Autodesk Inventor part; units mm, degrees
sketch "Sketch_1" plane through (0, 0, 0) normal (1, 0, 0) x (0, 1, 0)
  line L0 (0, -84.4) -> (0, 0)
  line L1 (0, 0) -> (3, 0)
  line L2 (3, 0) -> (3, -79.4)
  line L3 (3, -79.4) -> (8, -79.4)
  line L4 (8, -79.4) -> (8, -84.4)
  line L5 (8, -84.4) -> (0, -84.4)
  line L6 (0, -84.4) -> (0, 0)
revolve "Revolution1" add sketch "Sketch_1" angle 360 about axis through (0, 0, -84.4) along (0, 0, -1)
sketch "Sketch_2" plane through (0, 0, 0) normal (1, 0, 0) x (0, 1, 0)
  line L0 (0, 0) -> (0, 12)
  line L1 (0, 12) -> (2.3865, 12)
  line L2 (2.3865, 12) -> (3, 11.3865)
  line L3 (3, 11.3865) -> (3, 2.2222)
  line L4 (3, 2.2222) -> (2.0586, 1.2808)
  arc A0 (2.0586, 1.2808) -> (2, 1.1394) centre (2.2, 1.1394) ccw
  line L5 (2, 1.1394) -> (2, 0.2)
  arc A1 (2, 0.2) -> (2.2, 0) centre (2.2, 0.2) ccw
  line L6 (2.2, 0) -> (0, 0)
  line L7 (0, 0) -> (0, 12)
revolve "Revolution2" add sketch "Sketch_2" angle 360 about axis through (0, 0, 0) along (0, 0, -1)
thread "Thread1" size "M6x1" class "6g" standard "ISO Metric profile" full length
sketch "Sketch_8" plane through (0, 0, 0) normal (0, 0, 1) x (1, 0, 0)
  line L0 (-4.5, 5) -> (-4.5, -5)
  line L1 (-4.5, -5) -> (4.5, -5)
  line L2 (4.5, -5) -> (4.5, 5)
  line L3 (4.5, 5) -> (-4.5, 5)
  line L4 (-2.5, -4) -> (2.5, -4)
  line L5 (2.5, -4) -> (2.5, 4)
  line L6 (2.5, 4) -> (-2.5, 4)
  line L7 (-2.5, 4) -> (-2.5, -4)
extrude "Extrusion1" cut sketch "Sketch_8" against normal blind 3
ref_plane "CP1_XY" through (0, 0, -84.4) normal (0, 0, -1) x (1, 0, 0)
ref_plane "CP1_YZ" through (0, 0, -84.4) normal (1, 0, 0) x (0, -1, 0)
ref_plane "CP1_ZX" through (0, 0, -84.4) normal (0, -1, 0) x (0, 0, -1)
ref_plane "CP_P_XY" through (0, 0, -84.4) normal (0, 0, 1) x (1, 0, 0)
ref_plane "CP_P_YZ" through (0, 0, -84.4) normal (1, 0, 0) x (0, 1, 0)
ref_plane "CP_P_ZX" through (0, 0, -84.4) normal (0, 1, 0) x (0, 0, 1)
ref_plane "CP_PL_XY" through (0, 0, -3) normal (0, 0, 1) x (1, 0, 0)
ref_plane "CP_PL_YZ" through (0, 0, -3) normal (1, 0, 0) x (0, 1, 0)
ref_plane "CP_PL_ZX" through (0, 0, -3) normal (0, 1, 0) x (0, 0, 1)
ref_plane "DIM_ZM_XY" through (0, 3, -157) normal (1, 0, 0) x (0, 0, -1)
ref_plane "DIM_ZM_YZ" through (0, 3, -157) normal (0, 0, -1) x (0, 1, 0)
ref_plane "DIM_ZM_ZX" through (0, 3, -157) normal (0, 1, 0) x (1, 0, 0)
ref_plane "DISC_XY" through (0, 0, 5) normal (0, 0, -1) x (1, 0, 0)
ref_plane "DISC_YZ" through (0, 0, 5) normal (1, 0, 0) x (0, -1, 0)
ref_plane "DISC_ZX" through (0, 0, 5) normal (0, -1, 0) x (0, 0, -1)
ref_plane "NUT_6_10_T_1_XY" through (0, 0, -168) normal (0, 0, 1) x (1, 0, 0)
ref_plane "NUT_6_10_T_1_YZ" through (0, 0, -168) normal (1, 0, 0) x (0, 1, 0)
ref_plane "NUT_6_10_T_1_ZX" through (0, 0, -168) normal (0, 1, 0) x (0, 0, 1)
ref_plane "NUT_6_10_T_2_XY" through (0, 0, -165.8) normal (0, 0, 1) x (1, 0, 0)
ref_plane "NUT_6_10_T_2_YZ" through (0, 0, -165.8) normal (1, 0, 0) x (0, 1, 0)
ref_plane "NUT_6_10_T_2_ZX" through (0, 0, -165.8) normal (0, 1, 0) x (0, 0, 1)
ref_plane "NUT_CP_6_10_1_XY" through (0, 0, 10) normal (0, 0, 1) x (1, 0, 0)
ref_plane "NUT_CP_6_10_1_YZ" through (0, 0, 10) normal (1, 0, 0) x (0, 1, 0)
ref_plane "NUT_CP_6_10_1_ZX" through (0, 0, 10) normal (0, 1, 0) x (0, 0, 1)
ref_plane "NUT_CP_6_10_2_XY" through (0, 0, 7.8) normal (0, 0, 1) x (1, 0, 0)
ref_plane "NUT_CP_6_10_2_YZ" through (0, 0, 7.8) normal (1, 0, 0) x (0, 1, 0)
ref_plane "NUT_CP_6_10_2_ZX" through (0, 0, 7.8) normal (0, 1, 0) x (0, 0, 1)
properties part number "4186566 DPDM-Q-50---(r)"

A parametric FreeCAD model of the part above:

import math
import FreeCAD as App
import Part
import Sketcher
Q = App.Units.Quantity

doc = App.newDocument("Part")
body = doc.addObject("PartDesign::Body", "Body")

# Sketch on YZ plane
sketch1 = body.newObject("Sketcher::SketchObject", "Sketch")
sketch1.AttachmentSupport = (doc.getObject("YZ_Plane"), [""])
sketch1.MapMode = "FlatFace"
sketch1.addGeometry(Part.LineSegment(App.Vector(0, 0, 0), App.Vector(0, -84.4, 0)), False)
sketch1.addGeometry(Part.LineSegment(App.Vector(0, -84.4, 0), App.Vector(8, -84.4, 0)), False)
sketch1.addGeometry(Part.LineSegment(App.Vector(8, -84.4, 0), App.Vector(8, -79.4, 0)), False)
sketch1.addGeometry(Part.LineSegment(App.Vector(8, -79.4, 0), App.Vector(3, -79.4, 0)), False)
sketch1.addGeometry(Part.LineSegment(App.Vector(3, -79.4, 0), App.Vector(3, 0, 0)), False)
sketch1.addGeometry(Part.LineSegment(App.Vector(3, 0, 0), App.Vector(0, 0, 0)), False)
sketch1.addConstraint(Sketcher.Constraint("Coincident", 0, 2, 1, 1))
sketch1.addConstraint(Sketcher.Constraint("Coincident", 1, 2, 2, 1))
sketch1.addConstraint(Sketcher.Constraint("Coincident", 2, 2, 3, 1))
sketch1.addConstraint(Sketcher.Constraint("Coincident", 3, 2, 4, 1))
sketch1.addConstraint(Sketcher.Constraint("Coincident", 4, 2, 5, 1))
sketch1.addConstraint(Sketcher.Constraint("Coincident", 5, 2, 0, 1))
sketch1.addConstraint(Sketcher.Constraint("Vertical", 0))
sketch1.addConstraint(Sketcher.Constraint("Horizontal", 1))
sketch1.addConstraint(Sketcher.Constraint("Vertical", 2))
sketch1.addConstraint(Sketcher.Constraint("Horizontal", 3))
sketch1.addConstraint(Sketcher.Constraint("Vertical", 4))
sketch1.addConstraint(Sketcher.Constraint("Horizontal", 5))
sketch1.addConstraint(Sketcher.Constraint("Coincident", 5, 2, -1, 1))
sketch1.addConstraint(Sketcher.Constraint("Equal", 3, 2))
sketch1.addConstraint(Sketcher.Constraint("DistanceX", 1, 1, 1, 2, Q("8 mm")))
sketch1.addConstraint(Sketcher.Constraint("DistanceX", 3, 2, 3, 1, Q("5 mm")))
sketch1.addConstraint(Sketcher.Constraint("DistanceY", 0, 2, 0, 1, Q("84.4 mm")))
revolution = body.newObject("PartDesign::Revolution", "Revolution")
revolution.Profile = sketch1
revolution.ReferenceAxis = (sketch1, ["V_Axis"])
revolution.Angle = 360

# Sketch on YZ plane
sketch2 = body.newObject("Sketcher::SketchObject", "Sketch001")
sketch2.AttachmentSupport = (doc.getObject("YZ_Plane"), [""])
sketch2.MapMode = "FlatFace"
sketch2.addGeometry(Part.LineSegment(App.Vector(0, 12, 0), App.Vector(0, 0, 0)), False)
sketch2.addGeometry(Part.LineSegment(App.Vector(0, 0, 0), App.Vector(2.2, 0, 0)), False)
sketch2.addGeometry(Part.ArcOfCircle(Part.Circle(App.Vector(2.2, 0.2, 0), App.Vector(0, 0, 1), 0.2), math.radians(180), math.radians(270)), False)
sketch2.addGeometry(Part.LineSegment(App.Vector(2, 0.2, 0), App.Vector(2, 1.14, 0)), False)
sketch2.addGeometry(Part.ArcOfCircle(Part.Circle(App.Vector(2.2, 1.14, 0), App.Vector(0, 0, 1), 0.2), math.radians(135), math.radians(180)), False)
sketch2.addGeometry(Part.LineSegment(App.Vector(2.06, 1.28, 0), App.Vector(3, 2.22, 0)), False)
sketch2.addGeometry(Part.LineSegment(App.Vector(3, 2.22, 0), App.Vector(3, 11.39, 0)), False)
sketch2.addGeometry(Part.LineSegment(App.Vector(3, 11.39, 0), App.Vector(2.39, 12, 0)), False)
sketch2.addGeometry(Part.LineSegment(App.Vector(2.39, 12, 0), App.Vector(0, 12, 0)), False)
sketch2.addConstraint(Sketcher.Constraint("Coincident", 0, 2, 1, 1))
sketch2.addConstraint(Sketcher.Constraint("Tangent", 1, 2, 2, 2))
sketch2.addConstraint(Sketcher.Constraint("Tangent", 2, 1, 3, 1))
sketch2.addConstraint(Sketcher.Constraint("Tangent", 3, 2, 4, 2))
sketch2.addConstraint(Sketcher.Constraint("Tangent", 4, 1, 5, 1))
sketch2.addConstraint(Sketcher.Constraint("Coincident", 5, 2, 6, 1))
sketch2.addConstraint(Sketcher.Constraint("Coincident", 6, 2, 7, 1))
sketch2.addConstraint(Sketcher.Constraint("Coincident", 7, 2, 8, 1))
sketch2.addConstraint(Sketcher.Constraint("Coincident", 8, 2, 0, 1))
sketch2.addConstraint(Sketcher.Constraint("Vertical", 0))
sketch2.addConstraint(Sketcher.Constraint("Horizontal", 1))
sketch2.addConstraint(Sketcher.Constraint("Vertical", 3))
sketch2.addConstraint(Sketcher.Constraint("Vertical", 6))
sketch2.addConstraint(Sketcher.Constraint("Horizontal", 8))
sketch2.addConstraint(Sketcher.Constraint("Coincident", 0, 2, -1, 1))
sketch2.addConstraint(Sketcher.Constraint("Equal", 2, 4))
sketch2.addConstraint(Sketcher.Constraint("Perpendicular", 5, 7))
sketch2.addConstraint(Sketcher.Constraint("Radius", 2, Q("0.2 mm")))
sketch2.addConstraint(Sketcher.Constraint("DistanceY", 0, 2, 0, 1, Q("12 mm")))
sketch2.addConstraint(Sketcher.Constraint("Angle", 5, Q("45 deg")))
sketch2.addConstraint(Sketcher.Constraint("DistanceX", 1, 1, 1, 2, Q("2.2 mm")))
sketch2.addConstraint(Sketcher.Constraint("DistanceX", -1, 1, 5, 2, Q("3 mm")))
sketch2.addConstraint(Sketcher.Constraint("DistanceX", 8, 2, 8, 1, Q("2.3865 mm")))
sketch2.addConstraint(Sketcher.Constraint("DistanceY", 3, 1, 3, 2, Q("0.9394 mm")))
revolution2 = body.newObject("PartDesign::Revolution", "Revolution001")
revolution2.Profile = sketch2
revolution2.ReferenceAxis = (sketch2, ["V_Axis"])
revolution2.Angle = 360

# Sketch on XY plane
sketch3 = body.newObject("Sketcher::SketchObject", "Sketch002")
sketch3.AttachmentSupport = (doc.getObject("XY_Plane"), [""])
sketch3.MapMode = "FlatFace"
sketch3.addGeometry(Part.LineSegment(App.Vector(4, 5, 0), App.Vector(-4, 5, 0)), False)
sketch3.addGeometry(Part.LineSegment(App.Vector(-4, 5, 0), App.Vector(-4, -5, 0)), False)
sketch3.addGeometry(Part.LineSegment(App.Vector(-4, -5, 0), App.Vector(4, -5, 0)), False)
sketch3.addGeometry(Part.LineSegment(App.Vector(4, -5, 0), App.Vector(4, 5, 0)), False)
sketch3.addGeometry(Part.LineSegment(App.Vector(2, -4, 0), App.Vector(-2, -4, 0)), False)
sketch3.addGeometry(Part.LineSegment(App.Vector(-2, -4, 0), App.Vector(-2, 4, 0)), False)
sketch3.addGeometry(Part.LineSegment(App.Vector(-2, 4, 0), App.Vector(2, 4, 0)), False)
sketch3.addGeometry(Part.LineSegment(App.Vector(2, 4, 0), App.Vector(2, -4, 0)), False)
sketch3.addConstraint(Sketcher.Constraint("Coincident", 0, 2, 1, 1))
sketch3.addConstraint(Sketcher.Constraint("Coincident", 1, 2, 2, 1))
sketch3.addConstraint(Sketcher.Constraint("Coincident", 2, 2, 3, 1))
sketch3.addConstraint(Sketcher.Constraint("Coincident", 3, 2, 0, 1))
sketch3.addConstraint(Sketcher.Constraint("Coincident", 4, 2, 5, 1))
sketch3.addConstraint(Sketcher.Constraint("Coincident", 5, 2, 6, 1))
sketch3.addConstraint(Sketcher.Constraint("Coincident", 6, 2, 7, 1))
sketch3.addConstraint(Sketcher.Constraint("Coincident", 7, 2, 4, 1))
sketch3.addConstraint(Sketcher.Constraint("Horizontal", 0))
sketch3.addConstraint(Sketcher.Constraint("Vertical", 1))
sketch3.addConstraint(Sketcher.Constraint("Horizontal", 2))
sketch3.addConstraint(Sketcher.Constraint("Vertical", 3))
sketch3.addConstraint(Sketcher.Constraint("Horizontal", 4))
sketch3.addConstraint(Sketcher.Constraint("Vertical", 5))
sketch3.addConstraint(Sketcher.Constraint("Horizontal", 6))
sketch3.addConstraint(Sketcher.Constraint("Vertical", 7))
sketch3.addConstraint(Sketcher.Constraint("Symmetric", 0, 2, 2, 2, -1, 1))
sketch3.addConstraint(Sketcher.Constraint("Symmetric", 4, 2, 6, 2, -1, 1))
sketch3.addConstraint(Sketcher.Constraint("DistanceX", 0, 2, 0, 1, Q("9 mm")))
sketch3.addConstraint(Sketcher.Constraint("DistanceX", 4, 2, 4, 1, Q("5 mm")))
sketch3.addConstraint(Sketcher.Constraint("DistanceY", 1, 2, 1, 1, Q("10 mm")))
sketch3.addConstraint(Sketcher.Constraint("DistanceY", 5, 1, 5, 2, Q("8 mm")))
pocket1 = body.newObject("PartDesign::Pocket", "Pocket")
pocket1.Profile = sketch3
pocket1.Length = 3

doc.recompute()
